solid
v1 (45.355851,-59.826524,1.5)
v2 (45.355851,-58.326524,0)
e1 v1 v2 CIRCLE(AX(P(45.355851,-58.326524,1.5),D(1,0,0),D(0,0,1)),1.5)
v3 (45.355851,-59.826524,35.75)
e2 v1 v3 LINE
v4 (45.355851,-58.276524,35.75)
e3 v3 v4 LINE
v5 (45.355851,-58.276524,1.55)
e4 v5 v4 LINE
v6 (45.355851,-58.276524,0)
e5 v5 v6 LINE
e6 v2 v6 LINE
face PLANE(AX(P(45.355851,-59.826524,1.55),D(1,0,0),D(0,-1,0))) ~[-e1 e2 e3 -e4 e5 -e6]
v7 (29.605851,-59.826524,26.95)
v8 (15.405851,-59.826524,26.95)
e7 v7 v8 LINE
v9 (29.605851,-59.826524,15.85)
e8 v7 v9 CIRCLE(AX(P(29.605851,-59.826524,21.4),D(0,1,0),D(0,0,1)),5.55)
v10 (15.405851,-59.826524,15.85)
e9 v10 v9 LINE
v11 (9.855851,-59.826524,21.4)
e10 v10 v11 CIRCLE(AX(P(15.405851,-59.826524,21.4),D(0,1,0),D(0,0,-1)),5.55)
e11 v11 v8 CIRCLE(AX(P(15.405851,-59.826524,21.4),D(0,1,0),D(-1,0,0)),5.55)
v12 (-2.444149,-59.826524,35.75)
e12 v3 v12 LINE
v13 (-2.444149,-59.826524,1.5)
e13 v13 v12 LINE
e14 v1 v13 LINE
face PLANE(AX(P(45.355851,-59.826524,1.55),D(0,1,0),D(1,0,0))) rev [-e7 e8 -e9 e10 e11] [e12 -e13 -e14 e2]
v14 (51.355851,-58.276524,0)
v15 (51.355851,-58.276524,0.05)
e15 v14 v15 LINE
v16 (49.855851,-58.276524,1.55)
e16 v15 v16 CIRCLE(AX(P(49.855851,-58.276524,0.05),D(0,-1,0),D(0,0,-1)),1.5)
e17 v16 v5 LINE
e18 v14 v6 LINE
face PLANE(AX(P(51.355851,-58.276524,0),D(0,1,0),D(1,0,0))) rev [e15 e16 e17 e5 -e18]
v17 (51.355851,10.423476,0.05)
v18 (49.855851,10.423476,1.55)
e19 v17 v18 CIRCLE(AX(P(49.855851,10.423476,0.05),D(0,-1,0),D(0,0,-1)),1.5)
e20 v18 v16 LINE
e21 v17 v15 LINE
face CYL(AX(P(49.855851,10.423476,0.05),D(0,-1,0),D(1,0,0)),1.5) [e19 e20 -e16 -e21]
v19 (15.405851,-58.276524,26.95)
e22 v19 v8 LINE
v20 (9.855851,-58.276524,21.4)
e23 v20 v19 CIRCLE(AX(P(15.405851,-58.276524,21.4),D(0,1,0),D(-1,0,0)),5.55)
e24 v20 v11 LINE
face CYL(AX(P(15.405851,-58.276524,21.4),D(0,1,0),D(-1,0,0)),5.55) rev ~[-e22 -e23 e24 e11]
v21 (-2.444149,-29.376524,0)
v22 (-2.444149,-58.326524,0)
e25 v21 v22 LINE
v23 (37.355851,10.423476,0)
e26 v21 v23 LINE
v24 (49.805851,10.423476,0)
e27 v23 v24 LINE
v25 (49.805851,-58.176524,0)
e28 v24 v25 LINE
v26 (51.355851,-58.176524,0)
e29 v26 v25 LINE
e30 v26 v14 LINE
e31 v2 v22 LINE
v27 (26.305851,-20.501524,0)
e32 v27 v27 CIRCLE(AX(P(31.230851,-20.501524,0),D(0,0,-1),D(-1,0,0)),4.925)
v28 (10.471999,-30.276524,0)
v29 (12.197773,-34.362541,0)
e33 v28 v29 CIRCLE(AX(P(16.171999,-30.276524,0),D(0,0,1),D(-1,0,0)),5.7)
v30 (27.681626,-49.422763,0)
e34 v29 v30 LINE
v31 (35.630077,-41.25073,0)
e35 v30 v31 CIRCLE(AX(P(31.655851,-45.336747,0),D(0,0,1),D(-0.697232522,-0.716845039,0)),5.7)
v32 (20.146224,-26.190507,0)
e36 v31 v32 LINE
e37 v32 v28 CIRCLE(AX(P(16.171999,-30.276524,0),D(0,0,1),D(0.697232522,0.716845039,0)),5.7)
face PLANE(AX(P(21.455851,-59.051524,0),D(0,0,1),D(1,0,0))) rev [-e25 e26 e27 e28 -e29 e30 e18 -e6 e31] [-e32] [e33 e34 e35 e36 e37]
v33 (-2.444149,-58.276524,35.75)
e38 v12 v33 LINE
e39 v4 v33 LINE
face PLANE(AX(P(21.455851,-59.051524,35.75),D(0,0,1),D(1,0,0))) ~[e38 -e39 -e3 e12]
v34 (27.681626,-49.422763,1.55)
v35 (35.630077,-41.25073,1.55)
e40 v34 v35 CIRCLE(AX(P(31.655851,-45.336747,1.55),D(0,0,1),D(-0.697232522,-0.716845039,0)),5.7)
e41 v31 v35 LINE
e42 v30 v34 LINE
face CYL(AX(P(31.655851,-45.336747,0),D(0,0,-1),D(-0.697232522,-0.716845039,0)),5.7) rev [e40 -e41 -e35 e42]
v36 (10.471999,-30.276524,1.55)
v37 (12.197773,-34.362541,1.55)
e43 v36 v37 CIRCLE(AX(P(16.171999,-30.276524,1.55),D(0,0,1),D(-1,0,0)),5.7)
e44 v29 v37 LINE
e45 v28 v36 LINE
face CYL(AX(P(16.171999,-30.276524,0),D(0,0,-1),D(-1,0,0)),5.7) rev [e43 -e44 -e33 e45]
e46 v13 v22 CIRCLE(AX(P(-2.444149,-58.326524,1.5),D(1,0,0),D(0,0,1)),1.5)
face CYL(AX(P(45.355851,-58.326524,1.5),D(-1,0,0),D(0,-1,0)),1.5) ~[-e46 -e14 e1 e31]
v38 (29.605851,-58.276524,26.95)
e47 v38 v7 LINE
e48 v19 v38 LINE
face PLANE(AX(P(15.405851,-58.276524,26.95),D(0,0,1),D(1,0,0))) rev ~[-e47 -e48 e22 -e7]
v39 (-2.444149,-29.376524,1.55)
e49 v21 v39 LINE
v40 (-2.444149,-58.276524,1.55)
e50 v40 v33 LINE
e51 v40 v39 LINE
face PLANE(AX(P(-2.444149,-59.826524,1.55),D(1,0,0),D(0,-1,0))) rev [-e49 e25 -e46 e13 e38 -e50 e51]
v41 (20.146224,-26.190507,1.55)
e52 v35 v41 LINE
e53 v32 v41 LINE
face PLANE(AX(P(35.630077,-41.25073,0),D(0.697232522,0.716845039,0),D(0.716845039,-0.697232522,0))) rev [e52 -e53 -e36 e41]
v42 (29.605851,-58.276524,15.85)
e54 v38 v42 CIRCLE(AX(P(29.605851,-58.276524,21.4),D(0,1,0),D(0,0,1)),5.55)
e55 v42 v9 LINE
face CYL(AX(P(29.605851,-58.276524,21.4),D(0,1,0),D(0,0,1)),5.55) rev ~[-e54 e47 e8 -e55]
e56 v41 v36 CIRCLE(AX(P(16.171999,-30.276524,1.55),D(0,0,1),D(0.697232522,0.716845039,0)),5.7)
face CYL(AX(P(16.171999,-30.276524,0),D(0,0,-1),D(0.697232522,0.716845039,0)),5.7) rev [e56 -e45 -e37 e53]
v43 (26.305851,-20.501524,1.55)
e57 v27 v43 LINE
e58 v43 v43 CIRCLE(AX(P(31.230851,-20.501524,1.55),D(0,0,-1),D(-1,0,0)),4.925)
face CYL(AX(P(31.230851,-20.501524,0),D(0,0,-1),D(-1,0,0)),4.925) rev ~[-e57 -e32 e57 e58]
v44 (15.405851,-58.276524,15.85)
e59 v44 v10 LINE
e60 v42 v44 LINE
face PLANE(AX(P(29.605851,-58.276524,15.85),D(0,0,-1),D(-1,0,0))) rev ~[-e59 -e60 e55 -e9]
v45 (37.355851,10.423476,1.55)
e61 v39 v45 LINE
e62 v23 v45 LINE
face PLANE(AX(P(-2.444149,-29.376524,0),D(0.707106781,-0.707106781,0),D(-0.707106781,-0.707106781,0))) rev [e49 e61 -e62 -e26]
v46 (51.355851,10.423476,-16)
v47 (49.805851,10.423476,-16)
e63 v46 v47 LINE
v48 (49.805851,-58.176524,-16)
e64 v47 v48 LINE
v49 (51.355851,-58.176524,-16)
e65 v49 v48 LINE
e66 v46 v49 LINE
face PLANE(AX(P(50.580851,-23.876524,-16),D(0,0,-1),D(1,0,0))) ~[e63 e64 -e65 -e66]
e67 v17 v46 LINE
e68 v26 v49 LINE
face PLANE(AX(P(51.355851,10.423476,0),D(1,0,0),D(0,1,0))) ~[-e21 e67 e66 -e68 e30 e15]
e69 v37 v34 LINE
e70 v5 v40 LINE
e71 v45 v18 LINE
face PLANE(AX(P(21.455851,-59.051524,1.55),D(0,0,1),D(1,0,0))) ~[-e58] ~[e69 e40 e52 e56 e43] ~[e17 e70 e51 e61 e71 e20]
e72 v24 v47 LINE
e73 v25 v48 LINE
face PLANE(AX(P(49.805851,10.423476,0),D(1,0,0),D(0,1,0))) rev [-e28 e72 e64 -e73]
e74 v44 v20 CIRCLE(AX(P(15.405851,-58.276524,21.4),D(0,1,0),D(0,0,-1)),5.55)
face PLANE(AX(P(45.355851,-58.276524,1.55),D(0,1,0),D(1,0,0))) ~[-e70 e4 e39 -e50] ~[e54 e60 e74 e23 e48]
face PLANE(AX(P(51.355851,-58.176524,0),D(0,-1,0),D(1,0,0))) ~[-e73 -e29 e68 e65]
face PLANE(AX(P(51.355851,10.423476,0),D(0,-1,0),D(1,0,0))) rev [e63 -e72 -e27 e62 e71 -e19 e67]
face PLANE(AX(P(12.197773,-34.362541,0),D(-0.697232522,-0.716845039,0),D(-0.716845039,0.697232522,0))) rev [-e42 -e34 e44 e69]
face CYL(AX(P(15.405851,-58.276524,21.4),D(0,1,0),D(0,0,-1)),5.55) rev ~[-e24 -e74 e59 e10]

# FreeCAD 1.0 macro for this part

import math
import FreeCAD as App
import Part
import Sketcher
from FreeCAD import Vector
Q = App.Units.Quantity


def edges_at(feature, points):
    """Names of the edges that pass closest to the given points."""
    edges = feature.Shape.Edges
    near = lambda p: min(range(len(edges)), key=lambda i: edges[i].distToShape(Part.Vertex(*p))[0])
    return sorted({f"Edge{near(p) + 1}" for p in points})


def add_polygon(sketch, points):
    """Adds a closed chain of lines whose ends are joined by coincident constraints."""
    first, n = sketch.GeometryCount, len(points)
    for a, b in zip(points, points[1:] + points[:1]):
        sketch.addGeometry(Part.LineSegment(App.Vector(*a, 0), App.Vector(*b, 0)), False)
    for i in range(n):
        sketch.addConstraint(Sketcher.Constraint("Coincident", first + i, 2, first + (i + 1) % n, 1))

doc = App.newDocument("Part")
body = doc.addObject("PartDesign::Body", "Body")

sketch1 = body.newObject("Sketcher::SketchObject", "Sketch")
sketch1.AttachmentSupport = (doc.getObject("XY_Plane"), [""])
sketch1.MapMode = "FlatFace"
add_polygon(sketch1, [(-51.4, 10.4), (-51.4, -58.3), (2.4, -58.3), (2.4, -29.4), (-37.4, 10.4)])
sketch1.addGeometry(Part.LineSegment(Vector(-12.2, -34.4, 0), Vector(-27.7, -49.4, 0)), False)
sketch1.addGeometry(Part.ArcOfCircle(Part.Circle(Vector(-31.7, -45.3, 0), Vector(0, 0, 1), 5.7), math.radians(134), math.radians(314)), False)
sketch1.addGeometry(Part.LineSegment(Vector(-35.6, -41.3, 0), Vector(-20.1, -26.2, 0)), False)
sketch1.addGeometry(Part.ArcOfCircle(Part.Circle(Vector(-16.2, -30.3, 0), Vector(0, 0, 1), 5.7), math.radians(0), math.radians(134)), False)
sketch1.addGeometry(Part.ArcOfCircle(Part.Circle(Vector(-16.2, -30.3, 0), Vector(0, 0, 1), 5.7), math.radians(-46), math.radians(0)), False)
sketch1.addGeometry(Part.Circle(Vector(-31.2, -20.5, 0), Vector(0, 0, 1), 4.9), False)
sketch1.addConstraint([
    Sketcher.Constraint("Tangent", 5, 2, 6, 2),
    Sketcher.Constraint("Tangent", 6, 1, 7, 1),
    Sketcher.Constraint("Tangent", 7, 2, 8, 2),
    Sketcher.Constraint("Tangent", 8, 1, 9, 2),
    Sketcher.Constraint("Tangent", 9, 1, 5, 1),
    Sketcher.Constraint("Vertical", 0),
    Sketcher.Constraint("Horizontal", 1),
    Sketcher.Constraint("Vertical", 2),
    Sketcher.Constraint("Horizontal", 4),
    Sketcher.Constraint("Equal", 6, 8),
    Sketcher.Constraint("Equal", 8, 9),
    Sketcher.Constraint("Horizontal", 9, 3, 8, 1),
    Sketcher.Constraint("Radius", 6, 5.7),
    Sketcher.Constraint("Diameter", 10, 9.85),
    Sketcher.Constraint("DistanceX", 4, 2, 4, 1, 14.0),
    Sketcher.Constraint("Angle", 3, Q("135 deg")),
    Sketcher.Constraint("DistanceX", 1, 1, 1, 2, 53.8),
    Sketcher.Constraint("DistanceY", 0, 2, 0, 1, 68.7),
    Sketcher.Constraint("DistanceY", 0, 2, 8, 3, 28.0),
    Sketcher.Constraint("Distance", 5, 21.6),
    Sketcher.Constraint("DistanceX", 0, 2, 6, 3, 19.7),
    Sketcher.Constraint("DistanceX", 8, 3, -1, 1, 16.171999),
    Sketcher.Constraint("DistanceY", 8, 3, 10, 3, 9.775),
    Sketcher.Constraint("DistanceX", 6, 3, 10, 3, 0.425),
    Sketcher.Constraint("DistanceX", 6, 3, -1, 1, 31.655851),
    Sketcher.Constraint("DistanceY", 6, 1, -1, 1, 41.25073),
])
pad1 = body.newObject("PartDesign::Pad", "Pad")
pad1.Profile = sketch1
pad1.Length = 1.55

sketch2 = body.newObject("Sketcher::SketchObject", "Sketch001")
sketch2.AttachmentSupport = (doc.getObject("XY_Plane"), [""])
sketch2.MapMode = "FlatFace"
add_polygon(sketch2, [(-51.4, -58.2), (-51.4, 10.4), (-49.8, 10.4), (-49.8, -58.2)])
sketch2.addConstraint([
    Sketcher.Constraint("Vertical", 0),
    Sketcher.Constraint("Horizontal", 1),
    Sketcher.Constraint("Vertical", 2),
    Sketcher.Constraint("Horizontal", 3),
    Sketcher.Constraint("DistanceY", 0, 1, 0, 2, 68.6),
    Sketcher.Constraint("DistanceX", 1, 1, 1, 2, 1.55),
    Sketcher.Constraint("DistanceX", 0, 2, -1, 1, 51.355851),
    Sketcher.Constraint("DistanceY", -1, 1, 0, 2, 10.423476),
])
pad2 = body.newObject("PartDesign::Pad", "Pad001")
pad2.Profile = sketch2
pad2.Length = 16
pad2.Reversed = True

sketch3 = body.newObject("Sketcher::SketchObject", "Sketch002")
sketch3.AttachmentSupport = (doc.getObject("XY_Plane"), [""])
sketch3.MapMode = "FlatFace"
sketch3.AttachmentOffset = App.Placement(Vector(0, 0, 1.55), App.Rotation())
add_polygon(sketch3, [(-45.4, -58.3), (-45.4, -59.8), (2.4, -59.8), (2.4, -58.3)])
sketch3.addConstraint([
    Sketcher.Constraint("Vertical", 0),
    Sketcher.Constraint("Horizontal", 1),
    Sketcher.Constraint("Vertical", 2),
    Sketcher.Constraint("Horizontal", 3),
    Sketcher.Constraint("DistanceX", 1, 1, 1, 2, 47.8),
    Sketcher.Constraint("DistanceY", 0, 2, 0, 1, 1.55),
    Sketcher.Constraint("DistanceX", 0, 2, -1, 1, 45.355851),
    Sketcher.Constraint("DistanceY", 0, 2, -1, 1, 59.826524),
])
pad3 = body.newObject("PartDesign::Pad", "Pad002")
pad3.Profile = sketch3
pad3.Length = 1.55
pad3.Reversed = True

sketch4 = body.newObject("Sketcher::SketchObject", "Sketch003")
sketch4.AttachmentSupport = (doc.getObject("XY_Plane"), [""])
sketch4.MapMode = "FlatFace"
sketch4.AttachmentOffset = App.Placement(Vector(0, 0, 1.55), App.Rotation())
add_polygon(sketch4, [(-45.4, -58.3), (-45.4, -59.8), (2.4, -59.8), (2.4, -58.3)])
sketch4.addConstraint([
    Sketcher.Constraint("Vertical", 0),
    Sketcher.Constraint("Horizontal", 1),
    Sketcher.Constraint("Vertical", 2),
    Sketcher.Constraint("Horizontal", 3),
    Sketcher.Constraint("DistanceX", 1, 1, 1, 2, 47.8),
    Sketcher.Constraint("DistanceY", 0, 2, 0, 1, 1.55),
    Sketcher.Constraint("DistanceX", 0, 2, -1, 1, 45.355851),
    Sketcher.Constraint("DistanceY", 0, 2, -1, 1, 59.826524),
])
pad4 = body.newObject("PartDesign::Pad", "Pad003")
pad4.Profile = sketch4
pad4.Length = 34.2
doc.recompute()

fillet = body.newObject("PartDesign::Fillet", "Fillet")
fillet.Base = (pad4, edges_at(pad4, [(-21.456, -59.827, 0), (-51.356, -23.927, 1.55)]))
fillet.Radius = 1.5
body2 = doc.addObject("PartDesign::Body", "Body001")
doc.recompute()

mirroring = doc.addObject("Part::Mirroring", "Mirroring")
mirroring.Source = body
mirroring.Base = Vector(0, 0, 0)
mirroring.Normal = Vector(1, 0, 0)
body2.BaseFeature = mirroring
doc.recompute()

sketch5 = body2.newObject("Sketcher::SketchObject", "Sketch004")
sketch5.AttachmentSupport = (doc.getObject("XZ_Plane001"), [""])
sketch5.MapMode = "FlatFace"
sketch5.AttachmentOffset = App.Placement(Vector(0, 0, 58.276524), App.Rotation())
sketch5.addGeometry([
    Part.ArcOfCircle(Part.Circle(Vector(30, 21, 0), Vector(0, 0, 1), 6), math.radians(-90), math.radians(90)),
    Part.LineSegment(Vector(30, 16, 0), Vector(15, 16, 0)),
    Part.ArcOfCircle(Part.Circle(Vector(15, 21, 0), Vector(0, 0, 1), 6), math.radians(180), math.radians(270)),
    Part.ArcOfCircle(Part.Circle(Vector(15, 21, 0), Vector(0, 0, 1), 6), math.radians(90), math.radians(180)),
    Part.LineSegment(Vector(15, 27, 0), Vector(30, 27, 0)),
], False)
sketch5.addConstraint([
    Sketcher.Constraint("Tangent", 0, 1, 1, 1),
    Sketcher.Constraint("Tangent", 1, 2, 2, 2),
    Sketcher.Constraint("Tangent", 2, 1, 3, 2),
    Sketcher.Constraint("Tangent", 3, 1, 4, 1),
    Sketcher.Constraint("Tangent", 4, 2, 0, 2),
    Sketcher.Constraint("Horizontal", 1),
    Sketcher.Constraint("Horizontal", 4),
    Sketcher.Constraint("Equal", 0, 2),
    Sketcher.Constraint("Horizontal", 3, 3, 2, 1),
    Sketcher.Constraint("Radius", 0, 5.55),
    Sketcher.Constraint("DistanceX", 1, 2, 1, 1, 14.2),
    Sketcher.Constraint("DistanceY", -1, 1, 0, 3, 21.4),
    Sketcher.Constraint("DistanceX", -1, 1, 0, 3, 29.605851),
])
pocket1 = body2.newObject("PartDesign::Pocket", "Pocket")
pocket1.Profile = sketch5
pocket1.Type = "ThroughAll"
pocket1.Reversed = True
body.Visibility = False
mirroring.Visibility = False

doc.recompute()
